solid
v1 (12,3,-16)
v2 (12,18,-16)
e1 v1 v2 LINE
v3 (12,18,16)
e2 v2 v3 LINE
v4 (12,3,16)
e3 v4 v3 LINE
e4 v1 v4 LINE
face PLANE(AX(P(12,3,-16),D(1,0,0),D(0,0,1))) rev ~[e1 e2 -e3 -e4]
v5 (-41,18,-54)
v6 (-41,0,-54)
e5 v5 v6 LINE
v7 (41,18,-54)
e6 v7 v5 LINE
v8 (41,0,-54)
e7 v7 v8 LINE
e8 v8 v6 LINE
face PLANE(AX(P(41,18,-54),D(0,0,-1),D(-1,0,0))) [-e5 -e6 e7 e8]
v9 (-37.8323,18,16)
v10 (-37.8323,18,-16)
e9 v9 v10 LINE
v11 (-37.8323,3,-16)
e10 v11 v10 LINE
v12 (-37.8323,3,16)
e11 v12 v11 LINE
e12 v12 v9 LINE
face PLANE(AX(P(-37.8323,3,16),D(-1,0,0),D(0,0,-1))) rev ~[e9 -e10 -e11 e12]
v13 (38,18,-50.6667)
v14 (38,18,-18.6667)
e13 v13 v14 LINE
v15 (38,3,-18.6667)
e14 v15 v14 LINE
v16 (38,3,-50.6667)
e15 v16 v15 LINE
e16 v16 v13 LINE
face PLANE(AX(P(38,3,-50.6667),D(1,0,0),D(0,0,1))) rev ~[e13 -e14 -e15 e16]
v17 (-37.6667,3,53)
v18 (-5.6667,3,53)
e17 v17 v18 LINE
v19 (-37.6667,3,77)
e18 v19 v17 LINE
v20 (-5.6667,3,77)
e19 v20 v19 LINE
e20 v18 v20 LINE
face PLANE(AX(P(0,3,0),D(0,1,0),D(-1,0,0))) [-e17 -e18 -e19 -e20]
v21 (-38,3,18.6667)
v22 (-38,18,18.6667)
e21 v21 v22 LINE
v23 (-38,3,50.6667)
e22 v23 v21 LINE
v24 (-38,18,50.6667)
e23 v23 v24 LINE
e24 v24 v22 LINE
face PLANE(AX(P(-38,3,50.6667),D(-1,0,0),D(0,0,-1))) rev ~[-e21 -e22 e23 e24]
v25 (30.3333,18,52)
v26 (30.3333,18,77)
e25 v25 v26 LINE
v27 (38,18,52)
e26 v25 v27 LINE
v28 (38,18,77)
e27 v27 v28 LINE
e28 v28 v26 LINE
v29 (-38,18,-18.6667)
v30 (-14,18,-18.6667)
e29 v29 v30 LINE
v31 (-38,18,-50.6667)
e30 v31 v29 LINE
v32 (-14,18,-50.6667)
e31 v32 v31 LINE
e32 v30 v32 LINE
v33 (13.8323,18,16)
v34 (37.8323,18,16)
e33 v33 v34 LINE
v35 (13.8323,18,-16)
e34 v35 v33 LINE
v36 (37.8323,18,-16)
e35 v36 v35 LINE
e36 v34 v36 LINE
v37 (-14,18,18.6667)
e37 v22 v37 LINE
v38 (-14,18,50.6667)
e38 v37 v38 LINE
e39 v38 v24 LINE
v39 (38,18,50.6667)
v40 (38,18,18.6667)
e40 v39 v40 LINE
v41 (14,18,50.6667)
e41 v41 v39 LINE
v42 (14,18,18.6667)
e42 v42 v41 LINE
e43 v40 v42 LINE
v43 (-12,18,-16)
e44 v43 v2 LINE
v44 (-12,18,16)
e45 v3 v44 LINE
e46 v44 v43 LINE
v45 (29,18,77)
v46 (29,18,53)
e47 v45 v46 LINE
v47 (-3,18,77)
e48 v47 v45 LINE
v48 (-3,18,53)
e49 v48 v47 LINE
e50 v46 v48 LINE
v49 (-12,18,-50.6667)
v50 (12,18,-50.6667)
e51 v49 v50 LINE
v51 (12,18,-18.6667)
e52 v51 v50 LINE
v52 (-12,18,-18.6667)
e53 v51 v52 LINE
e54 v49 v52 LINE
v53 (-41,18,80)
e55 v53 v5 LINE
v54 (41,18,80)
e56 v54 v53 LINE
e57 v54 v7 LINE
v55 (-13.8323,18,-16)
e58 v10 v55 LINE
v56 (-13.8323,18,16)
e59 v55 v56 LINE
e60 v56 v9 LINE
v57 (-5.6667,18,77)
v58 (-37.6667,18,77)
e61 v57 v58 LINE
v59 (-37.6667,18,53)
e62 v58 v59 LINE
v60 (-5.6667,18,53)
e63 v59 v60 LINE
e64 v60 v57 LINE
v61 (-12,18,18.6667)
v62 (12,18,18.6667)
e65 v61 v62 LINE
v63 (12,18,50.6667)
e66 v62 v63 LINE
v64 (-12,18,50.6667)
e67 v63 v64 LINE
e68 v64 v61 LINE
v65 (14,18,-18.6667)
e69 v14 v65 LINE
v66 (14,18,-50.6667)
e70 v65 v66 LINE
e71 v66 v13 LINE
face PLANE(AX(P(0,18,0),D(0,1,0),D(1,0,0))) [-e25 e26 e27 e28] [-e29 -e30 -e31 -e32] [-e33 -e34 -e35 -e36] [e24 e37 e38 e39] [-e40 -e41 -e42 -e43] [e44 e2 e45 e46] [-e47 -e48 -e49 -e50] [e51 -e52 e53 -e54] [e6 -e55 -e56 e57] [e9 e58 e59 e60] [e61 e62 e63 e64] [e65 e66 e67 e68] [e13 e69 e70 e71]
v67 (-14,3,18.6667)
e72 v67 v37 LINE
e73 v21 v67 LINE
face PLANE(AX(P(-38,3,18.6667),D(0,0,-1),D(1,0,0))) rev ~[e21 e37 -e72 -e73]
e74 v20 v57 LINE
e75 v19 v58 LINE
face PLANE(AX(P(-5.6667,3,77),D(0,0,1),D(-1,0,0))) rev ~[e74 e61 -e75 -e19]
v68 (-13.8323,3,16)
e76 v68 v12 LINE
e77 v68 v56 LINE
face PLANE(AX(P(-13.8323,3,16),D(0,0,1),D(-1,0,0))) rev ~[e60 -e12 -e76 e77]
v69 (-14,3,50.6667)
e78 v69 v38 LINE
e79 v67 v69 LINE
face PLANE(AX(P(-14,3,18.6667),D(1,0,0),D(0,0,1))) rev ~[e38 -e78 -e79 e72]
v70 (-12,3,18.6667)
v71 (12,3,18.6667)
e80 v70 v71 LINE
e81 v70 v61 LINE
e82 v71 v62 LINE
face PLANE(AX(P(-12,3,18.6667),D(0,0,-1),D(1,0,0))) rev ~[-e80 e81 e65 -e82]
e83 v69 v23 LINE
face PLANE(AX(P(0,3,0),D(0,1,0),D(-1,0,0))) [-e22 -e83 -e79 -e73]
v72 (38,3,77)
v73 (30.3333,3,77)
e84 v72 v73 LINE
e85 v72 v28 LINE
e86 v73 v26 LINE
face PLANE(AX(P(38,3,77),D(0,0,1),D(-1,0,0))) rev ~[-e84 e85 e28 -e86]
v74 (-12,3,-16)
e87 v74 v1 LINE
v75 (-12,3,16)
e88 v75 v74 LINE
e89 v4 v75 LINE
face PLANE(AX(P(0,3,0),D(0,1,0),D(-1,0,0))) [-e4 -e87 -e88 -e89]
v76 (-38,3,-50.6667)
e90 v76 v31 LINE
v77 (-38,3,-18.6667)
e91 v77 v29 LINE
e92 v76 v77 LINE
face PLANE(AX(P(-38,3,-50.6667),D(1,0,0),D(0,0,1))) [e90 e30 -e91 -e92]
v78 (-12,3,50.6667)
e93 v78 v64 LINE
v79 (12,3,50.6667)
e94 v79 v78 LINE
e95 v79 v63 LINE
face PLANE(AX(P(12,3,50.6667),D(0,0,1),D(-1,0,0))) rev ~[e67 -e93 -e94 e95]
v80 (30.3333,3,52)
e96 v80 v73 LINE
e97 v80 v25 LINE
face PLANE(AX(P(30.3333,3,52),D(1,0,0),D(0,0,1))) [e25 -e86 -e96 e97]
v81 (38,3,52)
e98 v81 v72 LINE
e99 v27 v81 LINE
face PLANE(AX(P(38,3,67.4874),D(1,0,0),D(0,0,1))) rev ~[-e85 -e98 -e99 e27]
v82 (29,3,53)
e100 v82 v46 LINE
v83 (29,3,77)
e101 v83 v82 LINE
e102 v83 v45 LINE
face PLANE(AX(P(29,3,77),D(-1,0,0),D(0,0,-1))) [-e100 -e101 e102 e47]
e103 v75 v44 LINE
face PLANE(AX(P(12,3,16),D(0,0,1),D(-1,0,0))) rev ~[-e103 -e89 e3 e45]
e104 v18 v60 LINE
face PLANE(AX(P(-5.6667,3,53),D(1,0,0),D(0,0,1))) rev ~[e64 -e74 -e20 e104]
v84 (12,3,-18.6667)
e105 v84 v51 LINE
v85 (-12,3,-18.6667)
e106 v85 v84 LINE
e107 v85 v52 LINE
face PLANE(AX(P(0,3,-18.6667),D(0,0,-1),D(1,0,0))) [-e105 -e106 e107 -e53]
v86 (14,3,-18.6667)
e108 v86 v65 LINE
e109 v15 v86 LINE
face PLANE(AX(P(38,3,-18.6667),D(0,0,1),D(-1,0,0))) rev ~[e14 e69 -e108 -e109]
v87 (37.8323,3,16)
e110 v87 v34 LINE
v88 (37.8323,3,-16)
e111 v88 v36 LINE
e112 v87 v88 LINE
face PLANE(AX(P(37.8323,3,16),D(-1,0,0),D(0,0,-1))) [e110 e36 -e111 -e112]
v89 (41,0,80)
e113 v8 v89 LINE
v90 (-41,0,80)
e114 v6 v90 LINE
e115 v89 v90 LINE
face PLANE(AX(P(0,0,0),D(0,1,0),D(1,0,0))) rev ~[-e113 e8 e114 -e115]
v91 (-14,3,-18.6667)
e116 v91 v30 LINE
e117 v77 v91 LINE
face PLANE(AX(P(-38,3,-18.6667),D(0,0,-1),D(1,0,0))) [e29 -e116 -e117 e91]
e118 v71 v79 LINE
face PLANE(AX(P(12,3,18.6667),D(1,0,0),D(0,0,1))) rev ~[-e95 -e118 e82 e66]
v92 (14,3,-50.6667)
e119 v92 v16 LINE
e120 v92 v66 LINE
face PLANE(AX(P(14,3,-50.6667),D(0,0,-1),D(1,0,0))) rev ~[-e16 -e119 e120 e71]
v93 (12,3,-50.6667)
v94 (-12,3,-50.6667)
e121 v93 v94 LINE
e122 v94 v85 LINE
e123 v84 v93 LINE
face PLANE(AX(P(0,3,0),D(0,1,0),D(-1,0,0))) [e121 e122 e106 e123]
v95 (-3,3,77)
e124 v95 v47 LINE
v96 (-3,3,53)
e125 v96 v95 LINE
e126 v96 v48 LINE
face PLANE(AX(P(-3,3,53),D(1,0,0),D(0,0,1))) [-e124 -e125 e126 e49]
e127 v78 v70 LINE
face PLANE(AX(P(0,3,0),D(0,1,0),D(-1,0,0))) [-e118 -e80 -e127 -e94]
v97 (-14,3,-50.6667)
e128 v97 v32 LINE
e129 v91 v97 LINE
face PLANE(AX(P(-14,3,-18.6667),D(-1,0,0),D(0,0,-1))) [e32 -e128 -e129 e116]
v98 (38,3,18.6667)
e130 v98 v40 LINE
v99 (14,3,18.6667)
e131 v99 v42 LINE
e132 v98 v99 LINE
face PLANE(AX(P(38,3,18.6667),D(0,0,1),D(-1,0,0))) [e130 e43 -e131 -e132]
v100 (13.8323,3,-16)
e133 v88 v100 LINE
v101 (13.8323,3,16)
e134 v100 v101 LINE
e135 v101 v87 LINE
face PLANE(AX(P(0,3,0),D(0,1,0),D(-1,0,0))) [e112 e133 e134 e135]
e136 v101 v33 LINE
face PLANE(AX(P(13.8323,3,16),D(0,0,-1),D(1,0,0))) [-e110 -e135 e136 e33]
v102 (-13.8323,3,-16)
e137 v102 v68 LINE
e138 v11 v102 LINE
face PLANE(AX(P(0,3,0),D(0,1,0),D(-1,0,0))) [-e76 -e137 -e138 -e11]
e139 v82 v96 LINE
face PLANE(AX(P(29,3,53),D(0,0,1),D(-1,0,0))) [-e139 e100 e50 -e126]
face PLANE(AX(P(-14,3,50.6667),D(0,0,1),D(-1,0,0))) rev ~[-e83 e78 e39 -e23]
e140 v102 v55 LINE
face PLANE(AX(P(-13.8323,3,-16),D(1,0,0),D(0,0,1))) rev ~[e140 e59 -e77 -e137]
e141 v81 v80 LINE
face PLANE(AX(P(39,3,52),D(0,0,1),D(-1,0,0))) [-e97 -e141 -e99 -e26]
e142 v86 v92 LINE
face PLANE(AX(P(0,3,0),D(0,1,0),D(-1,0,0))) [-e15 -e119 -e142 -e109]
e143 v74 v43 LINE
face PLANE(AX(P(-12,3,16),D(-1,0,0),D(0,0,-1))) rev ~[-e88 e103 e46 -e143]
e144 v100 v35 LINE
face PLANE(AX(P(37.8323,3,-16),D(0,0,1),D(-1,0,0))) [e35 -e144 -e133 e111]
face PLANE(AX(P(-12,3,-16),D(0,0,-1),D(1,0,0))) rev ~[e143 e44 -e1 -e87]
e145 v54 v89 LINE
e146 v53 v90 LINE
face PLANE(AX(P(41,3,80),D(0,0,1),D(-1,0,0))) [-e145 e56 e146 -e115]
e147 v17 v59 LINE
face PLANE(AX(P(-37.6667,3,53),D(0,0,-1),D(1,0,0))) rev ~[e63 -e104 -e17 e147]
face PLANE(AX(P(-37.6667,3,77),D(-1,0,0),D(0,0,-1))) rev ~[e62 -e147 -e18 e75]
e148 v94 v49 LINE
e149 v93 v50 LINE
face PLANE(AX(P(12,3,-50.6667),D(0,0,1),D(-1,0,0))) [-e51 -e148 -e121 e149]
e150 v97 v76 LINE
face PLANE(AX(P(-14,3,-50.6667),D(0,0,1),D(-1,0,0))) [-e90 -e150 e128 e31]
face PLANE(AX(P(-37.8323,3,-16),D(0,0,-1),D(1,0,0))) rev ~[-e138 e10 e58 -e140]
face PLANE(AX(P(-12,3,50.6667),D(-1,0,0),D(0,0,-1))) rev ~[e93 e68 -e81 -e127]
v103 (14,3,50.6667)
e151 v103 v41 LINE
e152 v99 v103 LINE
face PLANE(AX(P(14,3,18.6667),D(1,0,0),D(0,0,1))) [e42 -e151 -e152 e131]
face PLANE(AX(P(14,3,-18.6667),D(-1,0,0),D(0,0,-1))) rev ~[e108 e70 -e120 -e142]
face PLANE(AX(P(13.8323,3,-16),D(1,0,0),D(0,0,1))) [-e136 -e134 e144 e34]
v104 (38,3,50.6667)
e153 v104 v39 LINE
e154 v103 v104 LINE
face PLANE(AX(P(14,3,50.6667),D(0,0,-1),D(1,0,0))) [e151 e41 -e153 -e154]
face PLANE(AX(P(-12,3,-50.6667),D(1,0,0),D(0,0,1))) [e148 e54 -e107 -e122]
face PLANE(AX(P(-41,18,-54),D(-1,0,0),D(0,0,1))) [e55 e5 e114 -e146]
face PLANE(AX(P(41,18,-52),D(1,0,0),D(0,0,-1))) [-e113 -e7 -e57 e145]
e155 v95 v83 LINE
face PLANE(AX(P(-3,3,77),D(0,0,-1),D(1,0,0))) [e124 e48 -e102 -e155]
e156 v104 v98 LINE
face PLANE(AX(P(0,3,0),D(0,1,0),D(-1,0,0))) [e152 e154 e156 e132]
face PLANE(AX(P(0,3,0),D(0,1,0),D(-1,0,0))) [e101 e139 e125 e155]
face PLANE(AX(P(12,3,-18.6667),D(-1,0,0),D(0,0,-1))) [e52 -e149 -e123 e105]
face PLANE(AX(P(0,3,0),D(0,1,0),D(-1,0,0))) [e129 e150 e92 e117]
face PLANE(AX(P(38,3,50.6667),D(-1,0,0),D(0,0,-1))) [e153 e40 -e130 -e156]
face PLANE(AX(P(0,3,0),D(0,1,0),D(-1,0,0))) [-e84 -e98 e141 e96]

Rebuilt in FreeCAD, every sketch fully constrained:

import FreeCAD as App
import Part
import Sketcher

V = App.Vector
Q = App.Units.Quantity


def add_polygon(sketch, points):
    """Adds a closed chain of lines whose ends are joined by coincident constraints."""
    first, n = sketch.GeometryCount, len(points)
    for a, b in zip(points, points[1:] + points[:1]):
        sketch.addGeometry(Part.LineSegment(App.Vector(*a, 0), App.Vector(*b, 0)), False)
    for i in range(n):
        sketch.addConstraint(Sketcher.Constraint("Coincident", first + i, 2, first + (i + 1) % n, 1))

doc = App.newDocument("Part")
body = doc.addObject("PartDesign::Body", "Body")

# Sketch on XZ plane
sketch1 = body.newObject("Sketcher::SketchObject", "Sketch")
sketch1.AttachmentSupport = (doc.getObject("XZ_Plane"), [""])
sketch1.MapMode = "FlatFace"
add_polygon(sketch1, [(41, -75), (-41, -75), (-41, 80), (41, 80)])  # lines 0-3
sketch1.addConstraint(Sketcher.Constraint("Horizontal", 0))
sketch1.addConstraint(Sketcher.Constraint("Vertical", 1))
sketch1.addConstraint(Sketcher.Constraint("Horizontal", 2))
sketch1.addConstraint(Sketcher.Constraint("Vertical", 3))
sketch1.addConstraint(Sketcher.Constraint("DistanceX", 0, 2, 0, 1, Q("82 mm")))
sketch1.addConstraint(Sketcher.Constraint("DistanceY", 1, 1, 1, 2, Q("155 mm")))
sketch1.addConstraint(Sketcher.Constraint("DistanceX", 0, 2, -1, 1, Q("41 mm")))
sketch1.addConstraint(Sketcher.Constraint("DistanceY", 0, 2, -1, 1, Q("75 mm")))
pad1 = body.newObject("PartDesign::Pad", "Pad")
pad1.Profile = sketch1
pad1.Length = 3
pad1.Reversed = True

# Sketch on XZ plane
sketch2 = body.newObject("Sketcher::SketchObject", "Sketch001")
sketch2.AttachmentSupport = (doc.getObject("XZ_Plane"), [""])
sketch2.MapMode = "FlatFace"
sketch2.AttachmentOffset = App.Placement(V(0, 0, -3), App.Rotation())
add_polygon(sketch2, [(41, 80), (41, -75), (-41, -75), (-41, 80)])  # lines 0-3
add_polygon(sketch2, [(-38, -67), (38, -67), (38, 77), (-38, 77)])  # lines 4-7
sketch2.addConstraint(Sketcher.Constraint("Vertical", 0))
sketch2.addConstraint(Sketcher.Constraint("Horizontal", 1))
sketch2.addConstraint(Sketcher.Constraint("Vertical", 2))
sketch2.addConstraint(Sketcher.Constraint("Horizontal", 3))
sketch2.addConstraint(Sketcher.Constraint("Horizontal", 4))
sketch2.addConstraint(Sketcher.Constraint("Vertical", 5))
sketch2.addConstraint(Sketcher.Constraint("Horizontal", 6))
sketch2.addConstraint(Sketcher.Constraint("Vertical", 7))
sketch2.addConstraint(Sketcher.Constraint("DistanceX", 4, 2, 0, 2, Q("3 mm")))
sketch2.addConstraint(Sketcher.Constraint("DistanceY", 5, 2, 3, 2, Q("3 mm")))
sketch2.addConstraint(Sketcher.Constraint("DistanceX", 2, 2, 6, 2, Q("3 mm")))
sketch2.addConstraint(Sketcher.Constraint("DistanceX", 1, 2, 1, 1, Q("82 mm")))
sketch2.addConstraint(Sketcher.Constraint("DistanceY", 0, 2, 0, 1, Q("155 mm")))
sketch2.addConstraint(Sketcher.Constraint("DistanceX", -1, 1, 0, 2, Q("41 mm")))
sketch2.addConstraint(Sketcher.Constraint("DistanceY", 0, 2, -1, 1, Q("75 mm")))
sketch2.addConstraint(Sketcher.Constraint("DistanceY", 5, 1, 5, 2, Q("144.4874 mm")))
pad2 = body.newObject("PartDesign::Pad", "Pad001")
pad2.Profile = sketch2
pad2.Length = 15
pad2.Reversed = True

# Sketch on XZ plane
sketch3 = body.newObject("Sketcher::SketchObject", "Sketch002")
sketch3.AttachmentSupport = (doc.getObject("XZ_Plane"), [""])
sketch3.MapMode = "FlatFace"
sketch3.AttachmentOffset = App.Placement(V(0, 0, -3), App.Rotation())
add_polygon(sketch3, [(-13, 17), (13, 17), (13, -17), (-13, -17)])  # lines 0-3
add_polygon(sketch3, [(12, -16), (12, 16), (-12, 16), (-12, -16)])  # lines 4-7
sketch3.addConstraint(Sketcher.Constraint("Horizontal", 0))
sketch3.addConstraint(Sketcher.Constraint("Vertical", 1))
sketch3.addConstraint(Sketcher.Constraint("Horizontal", 2))
sketch3.addConstraint(Sketcher.Constraint("Vertical", 3))
sketch3.addConstraint(Sketcher.Constraint("Vertical", 4))
sketch3.addConstraint(Sketcher.Constraint("Horizontal", 5))
sketch3.addConstraint(Sketcher.Constraint("Vertical", 6))
sketch3.addConstraint(Sketcher.Constraint("Horizontal", 7))
sketch3.addConstraint(Sketcher.Constraint("Symmetric", 0, 2, 2, 2, -1, 1))
sketch3.addConstraint(Sketcher.Constraint("Symmetric", 4, 2, 6, 2, -1, 1))
sketch3.addConstraint(Sketcher.Constraint("DistanceX", 0, 1, 0, 2, Q("26 mm")))
sketch3.addConstraint(Sketcher.Constraint("DistanceX", 5, 2, 5, 1, Q("24 mm")))
sketch3.addConstraint(Sketcher.Constraint("DistanceY", 4, 1, 4, 2, Q("32 mm")))
sketch3.addConstraint(Sketcher.Constraint("DistanceY", 1, 2, 1, 1, Q("34.6666 mm")))
pad3 = body.newObject("PartDesign::Pad", "Pad002")
pad3.Profile = sketch3
pad3.Length = 15
pad3.Reversed = True

# Sketch on XZ plane
sketch4 = body.newObject("Sketcher::SketchObject", "Sketch003")
sketch4.AttachmentSupport = (doc.getObject("XZ_Plane"), [""])
sketch4.MapMode = "FlatFace"
sketch4.AttachmentOffset = App.Placement(V(0, 0, -3), App.Rotation())
add_polygon(sketch4, [(-13, 17), (-13, -17), (-39, -17), (-39, 17)])  # lines 0-3
add_polygon(sketch4, [(-14, -16), (-14, 16), (-38, 16), (-38, -16)])  # lines 4-7
add_polygon(sketch4, [(39, -17), (13, -17), (13, 17), (39, 17)])  # lines 8-11
add_polygon(sketch4, [(38, 16), (14, 16), (14, -16), (38, -16)])  # lines 12-15
sketch4.addConstraint(Sketcher.Constraint("Vertical", 0))
sketch4.addConstraint(Sketcher.Constraint("Horizontal", 1))
sketch4.addConstraint(Sketcher.Constraint("Vertical", 2))
sketch4.addConstraint(Sketcher.Constraint("Horizontal", 3))
sketch4.addConstraint(Sketcher.Constraint("Vertical", 4))
sketch4.addConstraint(Sketcher.Constraint("Horizontal", 5))
sketch4.addConstraint(Sketcher.Constraint("Vertical", 6))
sketch4.addConstraint(Sketcher.Constraint("Horizontal", 7))
sketch4.addConstraint(Sketcher.Constraint("Horizontal", 8))
sketch4.addConstraint(Sketcher.Constraint("Vertical", 9))
sketch4.addConstraint(Sketcher.Constraint("Horizontal", 10))
sketch4.addConstraint(Sketcher.Constraint("Vertical", 11))
sketch4.addConstraint(Sketcher.Constraint("Horizontal", 12))
sketch4.addConstraint(Sketcher.Constraint("Vertical", 13))
sketch4.addConstraint(Sketcher.Constraint("Horizontal", 14))
sketch4.addConstraint(Sketcher.Constraint("Vertical", 15))
sketch4.addConstraint(Sketcher.Constraint("Symmetric", 3, 2, 8, 2, -1, 1))
sketch4.addConstraint(Sketcher.Constraint("Symmetric", 1, 2, 10, 2, -1, 1))
sketch4.addConstraint(Sketcher.Constraint("Symmetric", 7, 2, 12, 2, -1, 1))
sketch4.addConstraint(Sketcher.Constraint("Symmetric", 5, 2, 14, 2, -1, 1))
sketch4.addConstraint(Sketcher.Constraint("Horizontal", 1, 2, 8, 2))
sketch4.addConstraint(Sketcher.Constraint("Horizontal", 5, 2, 12, 2))
sketch4.addConstraint(Sketcher.Constraint("DistanceX", 1, 2, 1, 1, Q("26 mm")))
sketch4.addConstraint(Sketcher.Constraint("DistanceX", 5, 2, 5, 1, Q("24 mm")))
sketch4.addConstraint(Sketcher.Constraint("DistanceY", 4, 1, 4, 2, Q("32 mm")))
sketch4.addConstraint(Sketcher.Constraint("DistanceX", 0, 2, 8, 2, Q("26 mm")))
sketch4.addConstraint(Sketcher.Constraint("DistanceY", 0, 2, 0, 1, Q("34.6666 mm")))
sketch4.addConstraint(Sketcher.Constraint("DistanceX", 4, 2, -1, 1, Q("13.8323 mm")))
pad4 = body.newObject("PartDesign::Pad", "Pad003")
pad4.Profile = sketch4
pad4.Length = 15
pad4.Reversed = True

# Sketch on XZ plane
sketch5 = body.newObject("Sketcher::SketchObject", "Sketch004")
sketch5.AttachmentSupport = (doc.getObject("XZ_Plane"), [""])
sketch5.MapMode = "FlatFace"
sketch5.AttachmentOffset = App.Placement(V(0, 0, -3), App.Rotation())
add_polygon(sketch5, [(39, -17), (39, -52), (-39, -52), (-39, -17)])  # lines 0-3
add_polygon(sketch5, [(38, -19), (14, -19), (14, -51), (38, -51)])  # lines 4-7
add_polygon(sketch5, [(12, -19), (-12, -19), (-12, -51), (12, -51)])  # lines 8-11
add_polygon(sketch5, [(-14, -51), (-14, -19), (-38, -19), (-38, -51)])  # lines 12-15
add_polygon(sketch5, [(39, 17), (-39, 17), (-39, 52), (39, 52)])  # lines 16-19
add_polygon(sketch5, [(14, 19), (38, 19), (38, 51), (14, 51)])  # lines 20-23
add_polygon(sketch5, [(12, 51), (-12, 51), (-12, 19), (12, 19)])  # lines 24-27
add_polygon(sketch5, [(-14, 19), (-14, 51), (-38, 51), (-38, 19)])  # lines 28-31
sketch5.addConstraint(Sketcher.Constraint("Vertical", 0))
sketch5.addConstraint(Sketcher.Constraint("Horizontal", 1))
sketch5.addConstraint(Sketcher.Constraint("Vertical", 2))
sketch5.addConstraint(Sketcher.Constraint("Horizontal", 3))
sketch5.addConstraint(Sketcher.Constraint("Horizontal", 4))
sketch5.addConstraint(Sketcher.Constraint("Vertical", 5))
sketch5.addConstraint(Sketcher.Constraint("Horizontal", 6))
sketch5.addConstraint(Sketcher.Constraint("Vertical", 7))
sketch5.addConstraint(Sketcher.Constraint("Horizontal", 8))
sketch5.addConstraint(Sketcher.Constraint("Vertical", 9))
sketch5.addConstraint(Sketcher.Constraint("Horizontal", 10))
sketch5.addConstraint(Sketcher.Constraint("Vertical", 11))
sketch5.addConstraint(Sketcher.Constraint("Vertical", 12))
sketch5.addConstraint(Sketcher.Constraint("Horizontal", 13))
sketch5.addConstraint(Sketcher.Constraint("Vertical", 14))
sketch5.addConstraint(Sketcher.Constraint("Horizontal", 15))
sketch5.addConstraint(Sketcher.Constraint("Horizontal", 16))
sketch5.addConstraint(Sketcher.Constraint("Vertical", 17))
sketch5.addConstraint(Sketcher.Constraint("Horizontal", 18))
sketch5.addConstraint(Sketcher.Constraint("Vertical", 19))
sketch5.addConstraint(Sketcher.Constraint("Horizontal", 20))
sketch5.addConstraint(Sketcher.Constraint("Vertical", 21))
sketch5.addConstraint(Sketcher.Constraint("Horizontal", 22))
sketch5.addConstraint(Sketcher.Constraint("Vertical", 23))
sketch5.addConstraint(Sketcher.Constraint("Horizontal", 24))
sketch5.addConstraint(Sketcher.Constraint("Vertical", 25))
sketch5.addConstraint(Sketcher.Constraint("Horizontal", 26))
sketch5.addConstraint(Sketcher.Constraint("Vertical", 27))
sketch5.addConstraint(Sketcher.Constraint("Vertical", 28))
sketch5.addConstraint(Sketcher.Constraint("Horizontal", 29))
sketch5.addConstraint(Sketcher.Constraint("Vertical", 30))
sketch5.addConstraint(Sketcher.Constraint("Horizontal", 31))
sketch5.addConstraint(Sketcher.Constraint("Symmetric", 3, 2, 16, 2, -1, 1))
sketch5.addConstraint(Sketcher.Constraint("Symmetric", 1, 2, 18, 2, -1, 1))
sketch5.addConstraint(Sketcher.Constraint("Symmetric", 13, 2, 20, 2, -1, 1))
sketch5.addConstraint(Sketcher.Constraint("Symmetric", 15, 2, 22, 2, -1, 1))
sketch5.addConstraint(Sketcher.Constraint("Symmetric", 10, 2, 24, 2, -1, 1))
sketch5.addConstraint(Sketcher.Constraint("Symmetric", 8, 2, 26, 2, -1, 1))
sketch5.addConstraint(Sketcher.Constraint("Symmetric", 5, 2, 28, 2, -1, 1))
sketch5.addConstraint(Sketcher.Constraint("Symmetric", 7, 2, 30, 2, -1, 1))
sketch5.addConstraint(Sketcher.Constraint("Symmetric", 4, 2, 12, 2, -2))
sketch5.addConstraint(Sketcher.Constraint("Symmetric", 6, 2, 14, 2, -2))
sketch5.addConstraint(Sketcher.Constraint("Horizontal", 7, 2, 8, 2))
sketch5.addConstraint(Sketcher.Constraint("Horizontal", 6, 2, 9, 2))
sketch5.addConstraint(Sketcher.Constraint("Vertical", 2, 2, 16, 2))
sketch5.addConstraint(Sketcher.Constraint("Vertical", 9, 2, 24, 2))
sketch5.addConstraint(Sketcher.Constraint("Equal", 6, 8))
sketch5.addConstraint(Sketcher.Constraint("DistanceX", 4, 2, 4, 1, Q("24 mm")))
sketch5.addConstraint(Sketcher.Constraint("DistanceY", 5, 2, 5, 1, Q("32 mm")))
sketch5.addConstraint(Sketcher.Constraint("DistanceX", 8, 2, 4, 2, Q("26 mm")))
sketch5.addConstraint(Sketcher.Constraint("DistanceX", 1, 2, 1, 1, Q("78 mm")))
sketch5.addConstraint(Sketcher.Constraint("DistanceY", 0, 2, 0, 1, Q("34.6667 mm")))
sketch5.addConstraint(Sketcher.Constraint("DistanceY", 0, 2, -1, 1, Q("52 mm")))
sketch5.addConstraint(Sketcher.Constraint("DistanceY", 13, 2, 16, 2, Q("36 mm")))
pad5 = body.newObject("PartDesign::Pad", "Pad004")
pad5.Profile = sketch5
pad5.Length = 15
pad5.Reversed = True

# Sketch on XZ plane
sketch6 = body.newObject("Sketcher::SketchObject", "Sketch005")
sketch6.AttachmentSupport = (doc.getObject("XZ_Plane"), [""])
sketch6.MapMode = "FlatFace"
sketch6.AttachmentOffset = App.Placement(V(0, 0, -3), App.Rotation())
add_polygon(sketch6, [(-39, 78), (30, 78), (30, 52), (-39, 52)])  # lines 0-3
add_polygon(sketch6, [(-38, 77), (-38, 53), (-6, 53), (-6, 77)])  # lines 4-7
add_polygon(sketch6, [(-3, 77), (-3, 53), (29, 53), (29, 77)])  # lines 8-11
sketch6.addConstraint(Sketcher.Constraint("Horizontal", 0))
sketch6.addConstraint(Sketcher.Constraint("Vertical", 1))
sketch6.addConstraint(Sketcher.Constraint("Horizontal", 2))
sketch6.addConstraint(Sketcher.Constraint("Vertical", 3))
sketch6.addConstraint(Sketcher.Constraint("Vertical", 4))
sketch6.addConstraint(Sketcher.Constraint("Horizontal", 5))
sketch6.addConstraint(Sketcher.Constraint("Vertical", 6))
sketch6.addConstraint(Sketcher.Constraint("Horizontal", 7))
sketch6.addConstraint(Sketcher.Constraint("Vertical", 8))
sketch6.addConstraint(Sketcher.Constraint("Horizontal", 9))
sketch6.addConstraint(Sketcher.Constraint("Vertical", 10))
sketch6.addConstraint(Sketcher.Constraint("Horizontal", 11))
sketch6.addConstraint(Sketcher.Constraint("Horizontal", 5, 2, 8, 2))
sketch6.addConstraint(Sketcher.Constraint("Horizontal", 7, 2, 10, 2))
sketch6.addConstraint(Sketcher.Constraint("Equal", 7, 9))
sketch6.addConstraint(Sketcher.Constraint("DistanceX", 5, 1, 5, 2, Q("32 mm")))
sketch6.addConstraint(Sketcher.Constraint("DistanceY", 1, 2, 1, 1, Q("26 mm")))
sketch6.addConstraint(Sketcher.Constraint("DistanceY", 4, 2, 4, 1, Q("24 mm")))
sketch6.addConstraint(Sketcher.Constraint("DistanceY", -1, 1, 0, 2, Q("78 mm")))
sketch6.addConstraint(Sketcher.Constraint("DistanceX", 2, 2, -1, 1, Q("39 mm")))
sketch6.addConstraint(Sketcher.Constraint("DistanceY", -1, 1, 4, 2, Q("53 mm")))
sketch6.addConstraint(Sketcher.Constraint("DistanceX", 8, 2, -1, 1, Q("3 mm")))
sketch6.addConstraint(Sketcher.Constraint("DistanceX", 4, 2, 1, 2, Q("68 mm")))
sketch6.addConstraint(Sketcher.Constraint("DistanceX", 4, 2, 8, 2, Q("34.6667 mm")))
pad6 = body.newObject("PartDesign::Pad", "Pad005")
pad6.Profile = sketch6
pad6.Length = 15
pad6.Reversed = True

# Sketch on XZ plane
sketch7 = body.newObject("Sketcher::SketchObject", "Sketch006")
sketch7.AttachmentSupport = (doc.getObject("XZ_Plane"), [""])
sketch7.MapMode = "FlatFace"
sketch7.AttachmentOffset = App.Placement(V(0, 0, -18), App.Rotation())
add_polygon(sketch7, [(42, -75), (-41, -75), (-41, -52), (42, -52)])  # lines 0-3
sketch7.addConstraint(Sketcher.Constraint("Horizontal", 0))
sketch7.addConstraint(Sketcher.Constraint("Vertical", 1))
sketch7.addConstraint(Sketcher.Constraint("Horizontal", 2))
sketch7.addConstraint(Sketcher.Constraint("Vertical", 3))
sketch7.addConstraint(Sketcher.Constraint("DistanceY", 1, 1, 1, 2, Q("23 mm")))
sketch7.addConstraint(Sketcher.Constraint("DistanceX", 0, 2, -1, 1, Q("41 mm")))
sketch7.addConstraint(Sketcher.Constraint("DistanceY", 0, 2, -1, 1, Q("75 mm")))
sketch7.addConstraint(Sketcher.Constraint("DistanceX", 0, 2, 0, 1, Q("82.8498 mm")))
pocket1 = body.newObject("PartDesign::Pocket", "Pocket")
pocket1.Profile = sketch7
pocket1.Length = 500
pocket1.Reversed = True

# Sketch on XZ plane
sketch8 = body.newObject("Sketcher::SketchObject", "Sketch007")
sketch8.AttachmentSupport = (doc.getObject("XZ_Plane"), [""])
sketch8.MapMode = "FlatFace"
sketch8.AttachmentOffset = App.Placement(V(0, 0, -18), App.Rotation())
add_polygon(sketch8, [(-41, -54), (-41, -52), (41, -52), (41, -54)])  # lines 0-3
sketch8.addConstraint(Sketcher.Constraint("Vertical", 0))
sketch8.addConstraint(Sketcher.Constraint("Horizontal", 1))
sketch8.addConstraint(Sketcher.Constraint("Vertical", 2))
sketch8.addConstraint(Sketcher.Constraint("Horizontal", 3))
sketch8.addConstraint(Sketcher.Constraint("DistanceY", 0, 1, 0, 2, Q("2 mm")))
sketch8.addConstraint(Sketcher.Constraint("DistanceX", 1, 1, 1, 2, Q("82 mm")))
sketch8.addConstraint(Sketcher.Constraint("DistanceX", 0, 2, -1, 1, Q("41 mm")))
sketch8.addConstraint(Sketcher.Constraint("DistanceY", 0, 2, -1, 1, Q("52 mm")))
pad7 = body.newObject("PartDesign::Pad", "Pad006")
pad7.Profile = sketch8
pad7.Length = 18

doc.recompute()
